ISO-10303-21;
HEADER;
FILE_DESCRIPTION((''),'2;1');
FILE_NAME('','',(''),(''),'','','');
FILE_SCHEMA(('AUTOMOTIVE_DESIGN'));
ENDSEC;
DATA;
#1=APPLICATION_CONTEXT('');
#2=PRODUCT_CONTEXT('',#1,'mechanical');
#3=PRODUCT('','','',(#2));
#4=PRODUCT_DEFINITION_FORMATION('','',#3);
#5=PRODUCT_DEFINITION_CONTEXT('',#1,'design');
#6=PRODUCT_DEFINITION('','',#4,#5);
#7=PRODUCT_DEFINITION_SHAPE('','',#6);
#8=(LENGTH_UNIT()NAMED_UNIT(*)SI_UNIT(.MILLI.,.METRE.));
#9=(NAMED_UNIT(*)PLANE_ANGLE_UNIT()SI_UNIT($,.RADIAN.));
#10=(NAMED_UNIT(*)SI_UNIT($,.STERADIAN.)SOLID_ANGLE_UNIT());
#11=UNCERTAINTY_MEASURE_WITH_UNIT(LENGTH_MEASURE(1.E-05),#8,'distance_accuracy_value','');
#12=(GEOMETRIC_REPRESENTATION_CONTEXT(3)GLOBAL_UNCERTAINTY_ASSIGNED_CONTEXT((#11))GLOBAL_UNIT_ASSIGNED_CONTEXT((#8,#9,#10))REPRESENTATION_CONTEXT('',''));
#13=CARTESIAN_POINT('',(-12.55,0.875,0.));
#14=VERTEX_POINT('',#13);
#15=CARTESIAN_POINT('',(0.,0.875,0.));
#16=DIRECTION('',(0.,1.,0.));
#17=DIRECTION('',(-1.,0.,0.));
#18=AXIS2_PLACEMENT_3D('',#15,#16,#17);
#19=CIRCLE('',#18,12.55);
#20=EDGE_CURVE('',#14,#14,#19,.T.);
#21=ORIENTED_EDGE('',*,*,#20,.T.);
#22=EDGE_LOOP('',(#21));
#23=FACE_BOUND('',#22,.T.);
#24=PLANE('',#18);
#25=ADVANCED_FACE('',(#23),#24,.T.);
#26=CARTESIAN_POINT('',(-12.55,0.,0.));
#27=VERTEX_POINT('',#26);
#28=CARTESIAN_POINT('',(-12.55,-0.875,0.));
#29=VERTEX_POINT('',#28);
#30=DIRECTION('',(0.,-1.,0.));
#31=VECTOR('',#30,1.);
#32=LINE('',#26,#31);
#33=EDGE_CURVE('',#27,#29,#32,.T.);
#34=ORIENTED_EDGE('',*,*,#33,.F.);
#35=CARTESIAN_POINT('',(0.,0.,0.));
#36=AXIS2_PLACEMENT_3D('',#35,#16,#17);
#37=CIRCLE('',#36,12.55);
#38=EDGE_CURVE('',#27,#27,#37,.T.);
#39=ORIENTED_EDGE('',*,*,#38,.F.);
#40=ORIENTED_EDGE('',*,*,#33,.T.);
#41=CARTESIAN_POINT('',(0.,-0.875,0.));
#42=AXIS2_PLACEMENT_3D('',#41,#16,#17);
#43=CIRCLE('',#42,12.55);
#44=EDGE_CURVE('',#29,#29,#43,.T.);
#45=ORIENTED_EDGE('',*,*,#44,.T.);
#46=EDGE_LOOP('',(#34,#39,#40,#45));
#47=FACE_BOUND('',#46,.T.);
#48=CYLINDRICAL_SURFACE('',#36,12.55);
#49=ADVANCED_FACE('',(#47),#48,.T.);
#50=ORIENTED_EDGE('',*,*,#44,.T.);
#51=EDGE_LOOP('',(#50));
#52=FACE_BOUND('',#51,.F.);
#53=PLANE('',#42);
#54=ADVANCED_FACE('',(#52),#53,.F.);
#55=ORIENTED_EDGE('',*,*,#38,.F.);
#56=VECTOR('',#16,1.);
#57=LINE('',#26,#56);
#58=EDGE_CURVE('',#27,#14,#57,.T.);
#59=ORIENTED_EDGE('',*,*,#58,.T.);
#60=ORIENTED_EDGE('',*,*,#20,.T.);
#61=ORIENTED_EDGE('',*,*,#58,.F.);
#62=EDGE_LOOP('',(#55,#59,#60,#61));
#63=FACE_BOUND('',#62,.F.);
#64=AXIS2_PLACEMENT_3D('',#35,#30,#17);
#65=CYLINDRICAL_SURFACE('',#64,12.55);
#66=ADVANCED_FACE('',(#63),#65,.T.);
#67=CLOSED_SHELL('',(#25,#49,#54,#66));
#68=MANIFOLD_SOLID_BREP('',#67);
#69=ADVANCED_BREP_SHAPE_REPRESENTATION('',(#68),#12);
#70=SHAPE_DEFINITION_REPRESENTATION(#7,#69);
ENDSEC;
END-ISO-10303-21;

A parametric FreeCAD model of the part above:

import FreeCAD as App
import Part
import Sketcher
Q = App.Units.Quantity

doc = App.newDocument("Part")
params = doc.addObject("Spreadsheet::Sheet", "Params")
for row, (alias, value) in enumerate([
    ("sketch1_diameter", "25.1 mm"),
    ("pad1_length", "1.75 mm"),
], start=1):
    params.set(f"A{row}", alias)
    params.set(f"B{row}", "=" + value)
    params.setAlias(f"B{row}", alias)

body = doc.addObject("PartDesign::Body", "Body")

sketch1 = body.newObject("Sketcher::SketchObject", "Sketch")
sketch1.AttachmentSupport = (doc.getObject("XZ_Plane"), [""])
sketch1.MapMode = "FlatFace"
sketch1.addGeometry(Part.Circle(App.Vector(0, 0, 0), App.Vector(0, 0, 1), 13), False)
sketch1.addConstraint(Sketcher.Constraint("Coincident", 0, 3, -1, 1))
sketch1.addConstraint(Sketcher.Constraint("Diameter", 0, Q("25.1 mm")))
sketch1.setExpression("Constraints[1]", "Params.sketch1_diameter")
pad1 = body.newObject("PartDesign::Pad", "Pad")
pad1.Profile = sketch1
pad1.setExpression("Length", "Params.pad1_length")
pad1.Midplane = True

doc.recompute()
